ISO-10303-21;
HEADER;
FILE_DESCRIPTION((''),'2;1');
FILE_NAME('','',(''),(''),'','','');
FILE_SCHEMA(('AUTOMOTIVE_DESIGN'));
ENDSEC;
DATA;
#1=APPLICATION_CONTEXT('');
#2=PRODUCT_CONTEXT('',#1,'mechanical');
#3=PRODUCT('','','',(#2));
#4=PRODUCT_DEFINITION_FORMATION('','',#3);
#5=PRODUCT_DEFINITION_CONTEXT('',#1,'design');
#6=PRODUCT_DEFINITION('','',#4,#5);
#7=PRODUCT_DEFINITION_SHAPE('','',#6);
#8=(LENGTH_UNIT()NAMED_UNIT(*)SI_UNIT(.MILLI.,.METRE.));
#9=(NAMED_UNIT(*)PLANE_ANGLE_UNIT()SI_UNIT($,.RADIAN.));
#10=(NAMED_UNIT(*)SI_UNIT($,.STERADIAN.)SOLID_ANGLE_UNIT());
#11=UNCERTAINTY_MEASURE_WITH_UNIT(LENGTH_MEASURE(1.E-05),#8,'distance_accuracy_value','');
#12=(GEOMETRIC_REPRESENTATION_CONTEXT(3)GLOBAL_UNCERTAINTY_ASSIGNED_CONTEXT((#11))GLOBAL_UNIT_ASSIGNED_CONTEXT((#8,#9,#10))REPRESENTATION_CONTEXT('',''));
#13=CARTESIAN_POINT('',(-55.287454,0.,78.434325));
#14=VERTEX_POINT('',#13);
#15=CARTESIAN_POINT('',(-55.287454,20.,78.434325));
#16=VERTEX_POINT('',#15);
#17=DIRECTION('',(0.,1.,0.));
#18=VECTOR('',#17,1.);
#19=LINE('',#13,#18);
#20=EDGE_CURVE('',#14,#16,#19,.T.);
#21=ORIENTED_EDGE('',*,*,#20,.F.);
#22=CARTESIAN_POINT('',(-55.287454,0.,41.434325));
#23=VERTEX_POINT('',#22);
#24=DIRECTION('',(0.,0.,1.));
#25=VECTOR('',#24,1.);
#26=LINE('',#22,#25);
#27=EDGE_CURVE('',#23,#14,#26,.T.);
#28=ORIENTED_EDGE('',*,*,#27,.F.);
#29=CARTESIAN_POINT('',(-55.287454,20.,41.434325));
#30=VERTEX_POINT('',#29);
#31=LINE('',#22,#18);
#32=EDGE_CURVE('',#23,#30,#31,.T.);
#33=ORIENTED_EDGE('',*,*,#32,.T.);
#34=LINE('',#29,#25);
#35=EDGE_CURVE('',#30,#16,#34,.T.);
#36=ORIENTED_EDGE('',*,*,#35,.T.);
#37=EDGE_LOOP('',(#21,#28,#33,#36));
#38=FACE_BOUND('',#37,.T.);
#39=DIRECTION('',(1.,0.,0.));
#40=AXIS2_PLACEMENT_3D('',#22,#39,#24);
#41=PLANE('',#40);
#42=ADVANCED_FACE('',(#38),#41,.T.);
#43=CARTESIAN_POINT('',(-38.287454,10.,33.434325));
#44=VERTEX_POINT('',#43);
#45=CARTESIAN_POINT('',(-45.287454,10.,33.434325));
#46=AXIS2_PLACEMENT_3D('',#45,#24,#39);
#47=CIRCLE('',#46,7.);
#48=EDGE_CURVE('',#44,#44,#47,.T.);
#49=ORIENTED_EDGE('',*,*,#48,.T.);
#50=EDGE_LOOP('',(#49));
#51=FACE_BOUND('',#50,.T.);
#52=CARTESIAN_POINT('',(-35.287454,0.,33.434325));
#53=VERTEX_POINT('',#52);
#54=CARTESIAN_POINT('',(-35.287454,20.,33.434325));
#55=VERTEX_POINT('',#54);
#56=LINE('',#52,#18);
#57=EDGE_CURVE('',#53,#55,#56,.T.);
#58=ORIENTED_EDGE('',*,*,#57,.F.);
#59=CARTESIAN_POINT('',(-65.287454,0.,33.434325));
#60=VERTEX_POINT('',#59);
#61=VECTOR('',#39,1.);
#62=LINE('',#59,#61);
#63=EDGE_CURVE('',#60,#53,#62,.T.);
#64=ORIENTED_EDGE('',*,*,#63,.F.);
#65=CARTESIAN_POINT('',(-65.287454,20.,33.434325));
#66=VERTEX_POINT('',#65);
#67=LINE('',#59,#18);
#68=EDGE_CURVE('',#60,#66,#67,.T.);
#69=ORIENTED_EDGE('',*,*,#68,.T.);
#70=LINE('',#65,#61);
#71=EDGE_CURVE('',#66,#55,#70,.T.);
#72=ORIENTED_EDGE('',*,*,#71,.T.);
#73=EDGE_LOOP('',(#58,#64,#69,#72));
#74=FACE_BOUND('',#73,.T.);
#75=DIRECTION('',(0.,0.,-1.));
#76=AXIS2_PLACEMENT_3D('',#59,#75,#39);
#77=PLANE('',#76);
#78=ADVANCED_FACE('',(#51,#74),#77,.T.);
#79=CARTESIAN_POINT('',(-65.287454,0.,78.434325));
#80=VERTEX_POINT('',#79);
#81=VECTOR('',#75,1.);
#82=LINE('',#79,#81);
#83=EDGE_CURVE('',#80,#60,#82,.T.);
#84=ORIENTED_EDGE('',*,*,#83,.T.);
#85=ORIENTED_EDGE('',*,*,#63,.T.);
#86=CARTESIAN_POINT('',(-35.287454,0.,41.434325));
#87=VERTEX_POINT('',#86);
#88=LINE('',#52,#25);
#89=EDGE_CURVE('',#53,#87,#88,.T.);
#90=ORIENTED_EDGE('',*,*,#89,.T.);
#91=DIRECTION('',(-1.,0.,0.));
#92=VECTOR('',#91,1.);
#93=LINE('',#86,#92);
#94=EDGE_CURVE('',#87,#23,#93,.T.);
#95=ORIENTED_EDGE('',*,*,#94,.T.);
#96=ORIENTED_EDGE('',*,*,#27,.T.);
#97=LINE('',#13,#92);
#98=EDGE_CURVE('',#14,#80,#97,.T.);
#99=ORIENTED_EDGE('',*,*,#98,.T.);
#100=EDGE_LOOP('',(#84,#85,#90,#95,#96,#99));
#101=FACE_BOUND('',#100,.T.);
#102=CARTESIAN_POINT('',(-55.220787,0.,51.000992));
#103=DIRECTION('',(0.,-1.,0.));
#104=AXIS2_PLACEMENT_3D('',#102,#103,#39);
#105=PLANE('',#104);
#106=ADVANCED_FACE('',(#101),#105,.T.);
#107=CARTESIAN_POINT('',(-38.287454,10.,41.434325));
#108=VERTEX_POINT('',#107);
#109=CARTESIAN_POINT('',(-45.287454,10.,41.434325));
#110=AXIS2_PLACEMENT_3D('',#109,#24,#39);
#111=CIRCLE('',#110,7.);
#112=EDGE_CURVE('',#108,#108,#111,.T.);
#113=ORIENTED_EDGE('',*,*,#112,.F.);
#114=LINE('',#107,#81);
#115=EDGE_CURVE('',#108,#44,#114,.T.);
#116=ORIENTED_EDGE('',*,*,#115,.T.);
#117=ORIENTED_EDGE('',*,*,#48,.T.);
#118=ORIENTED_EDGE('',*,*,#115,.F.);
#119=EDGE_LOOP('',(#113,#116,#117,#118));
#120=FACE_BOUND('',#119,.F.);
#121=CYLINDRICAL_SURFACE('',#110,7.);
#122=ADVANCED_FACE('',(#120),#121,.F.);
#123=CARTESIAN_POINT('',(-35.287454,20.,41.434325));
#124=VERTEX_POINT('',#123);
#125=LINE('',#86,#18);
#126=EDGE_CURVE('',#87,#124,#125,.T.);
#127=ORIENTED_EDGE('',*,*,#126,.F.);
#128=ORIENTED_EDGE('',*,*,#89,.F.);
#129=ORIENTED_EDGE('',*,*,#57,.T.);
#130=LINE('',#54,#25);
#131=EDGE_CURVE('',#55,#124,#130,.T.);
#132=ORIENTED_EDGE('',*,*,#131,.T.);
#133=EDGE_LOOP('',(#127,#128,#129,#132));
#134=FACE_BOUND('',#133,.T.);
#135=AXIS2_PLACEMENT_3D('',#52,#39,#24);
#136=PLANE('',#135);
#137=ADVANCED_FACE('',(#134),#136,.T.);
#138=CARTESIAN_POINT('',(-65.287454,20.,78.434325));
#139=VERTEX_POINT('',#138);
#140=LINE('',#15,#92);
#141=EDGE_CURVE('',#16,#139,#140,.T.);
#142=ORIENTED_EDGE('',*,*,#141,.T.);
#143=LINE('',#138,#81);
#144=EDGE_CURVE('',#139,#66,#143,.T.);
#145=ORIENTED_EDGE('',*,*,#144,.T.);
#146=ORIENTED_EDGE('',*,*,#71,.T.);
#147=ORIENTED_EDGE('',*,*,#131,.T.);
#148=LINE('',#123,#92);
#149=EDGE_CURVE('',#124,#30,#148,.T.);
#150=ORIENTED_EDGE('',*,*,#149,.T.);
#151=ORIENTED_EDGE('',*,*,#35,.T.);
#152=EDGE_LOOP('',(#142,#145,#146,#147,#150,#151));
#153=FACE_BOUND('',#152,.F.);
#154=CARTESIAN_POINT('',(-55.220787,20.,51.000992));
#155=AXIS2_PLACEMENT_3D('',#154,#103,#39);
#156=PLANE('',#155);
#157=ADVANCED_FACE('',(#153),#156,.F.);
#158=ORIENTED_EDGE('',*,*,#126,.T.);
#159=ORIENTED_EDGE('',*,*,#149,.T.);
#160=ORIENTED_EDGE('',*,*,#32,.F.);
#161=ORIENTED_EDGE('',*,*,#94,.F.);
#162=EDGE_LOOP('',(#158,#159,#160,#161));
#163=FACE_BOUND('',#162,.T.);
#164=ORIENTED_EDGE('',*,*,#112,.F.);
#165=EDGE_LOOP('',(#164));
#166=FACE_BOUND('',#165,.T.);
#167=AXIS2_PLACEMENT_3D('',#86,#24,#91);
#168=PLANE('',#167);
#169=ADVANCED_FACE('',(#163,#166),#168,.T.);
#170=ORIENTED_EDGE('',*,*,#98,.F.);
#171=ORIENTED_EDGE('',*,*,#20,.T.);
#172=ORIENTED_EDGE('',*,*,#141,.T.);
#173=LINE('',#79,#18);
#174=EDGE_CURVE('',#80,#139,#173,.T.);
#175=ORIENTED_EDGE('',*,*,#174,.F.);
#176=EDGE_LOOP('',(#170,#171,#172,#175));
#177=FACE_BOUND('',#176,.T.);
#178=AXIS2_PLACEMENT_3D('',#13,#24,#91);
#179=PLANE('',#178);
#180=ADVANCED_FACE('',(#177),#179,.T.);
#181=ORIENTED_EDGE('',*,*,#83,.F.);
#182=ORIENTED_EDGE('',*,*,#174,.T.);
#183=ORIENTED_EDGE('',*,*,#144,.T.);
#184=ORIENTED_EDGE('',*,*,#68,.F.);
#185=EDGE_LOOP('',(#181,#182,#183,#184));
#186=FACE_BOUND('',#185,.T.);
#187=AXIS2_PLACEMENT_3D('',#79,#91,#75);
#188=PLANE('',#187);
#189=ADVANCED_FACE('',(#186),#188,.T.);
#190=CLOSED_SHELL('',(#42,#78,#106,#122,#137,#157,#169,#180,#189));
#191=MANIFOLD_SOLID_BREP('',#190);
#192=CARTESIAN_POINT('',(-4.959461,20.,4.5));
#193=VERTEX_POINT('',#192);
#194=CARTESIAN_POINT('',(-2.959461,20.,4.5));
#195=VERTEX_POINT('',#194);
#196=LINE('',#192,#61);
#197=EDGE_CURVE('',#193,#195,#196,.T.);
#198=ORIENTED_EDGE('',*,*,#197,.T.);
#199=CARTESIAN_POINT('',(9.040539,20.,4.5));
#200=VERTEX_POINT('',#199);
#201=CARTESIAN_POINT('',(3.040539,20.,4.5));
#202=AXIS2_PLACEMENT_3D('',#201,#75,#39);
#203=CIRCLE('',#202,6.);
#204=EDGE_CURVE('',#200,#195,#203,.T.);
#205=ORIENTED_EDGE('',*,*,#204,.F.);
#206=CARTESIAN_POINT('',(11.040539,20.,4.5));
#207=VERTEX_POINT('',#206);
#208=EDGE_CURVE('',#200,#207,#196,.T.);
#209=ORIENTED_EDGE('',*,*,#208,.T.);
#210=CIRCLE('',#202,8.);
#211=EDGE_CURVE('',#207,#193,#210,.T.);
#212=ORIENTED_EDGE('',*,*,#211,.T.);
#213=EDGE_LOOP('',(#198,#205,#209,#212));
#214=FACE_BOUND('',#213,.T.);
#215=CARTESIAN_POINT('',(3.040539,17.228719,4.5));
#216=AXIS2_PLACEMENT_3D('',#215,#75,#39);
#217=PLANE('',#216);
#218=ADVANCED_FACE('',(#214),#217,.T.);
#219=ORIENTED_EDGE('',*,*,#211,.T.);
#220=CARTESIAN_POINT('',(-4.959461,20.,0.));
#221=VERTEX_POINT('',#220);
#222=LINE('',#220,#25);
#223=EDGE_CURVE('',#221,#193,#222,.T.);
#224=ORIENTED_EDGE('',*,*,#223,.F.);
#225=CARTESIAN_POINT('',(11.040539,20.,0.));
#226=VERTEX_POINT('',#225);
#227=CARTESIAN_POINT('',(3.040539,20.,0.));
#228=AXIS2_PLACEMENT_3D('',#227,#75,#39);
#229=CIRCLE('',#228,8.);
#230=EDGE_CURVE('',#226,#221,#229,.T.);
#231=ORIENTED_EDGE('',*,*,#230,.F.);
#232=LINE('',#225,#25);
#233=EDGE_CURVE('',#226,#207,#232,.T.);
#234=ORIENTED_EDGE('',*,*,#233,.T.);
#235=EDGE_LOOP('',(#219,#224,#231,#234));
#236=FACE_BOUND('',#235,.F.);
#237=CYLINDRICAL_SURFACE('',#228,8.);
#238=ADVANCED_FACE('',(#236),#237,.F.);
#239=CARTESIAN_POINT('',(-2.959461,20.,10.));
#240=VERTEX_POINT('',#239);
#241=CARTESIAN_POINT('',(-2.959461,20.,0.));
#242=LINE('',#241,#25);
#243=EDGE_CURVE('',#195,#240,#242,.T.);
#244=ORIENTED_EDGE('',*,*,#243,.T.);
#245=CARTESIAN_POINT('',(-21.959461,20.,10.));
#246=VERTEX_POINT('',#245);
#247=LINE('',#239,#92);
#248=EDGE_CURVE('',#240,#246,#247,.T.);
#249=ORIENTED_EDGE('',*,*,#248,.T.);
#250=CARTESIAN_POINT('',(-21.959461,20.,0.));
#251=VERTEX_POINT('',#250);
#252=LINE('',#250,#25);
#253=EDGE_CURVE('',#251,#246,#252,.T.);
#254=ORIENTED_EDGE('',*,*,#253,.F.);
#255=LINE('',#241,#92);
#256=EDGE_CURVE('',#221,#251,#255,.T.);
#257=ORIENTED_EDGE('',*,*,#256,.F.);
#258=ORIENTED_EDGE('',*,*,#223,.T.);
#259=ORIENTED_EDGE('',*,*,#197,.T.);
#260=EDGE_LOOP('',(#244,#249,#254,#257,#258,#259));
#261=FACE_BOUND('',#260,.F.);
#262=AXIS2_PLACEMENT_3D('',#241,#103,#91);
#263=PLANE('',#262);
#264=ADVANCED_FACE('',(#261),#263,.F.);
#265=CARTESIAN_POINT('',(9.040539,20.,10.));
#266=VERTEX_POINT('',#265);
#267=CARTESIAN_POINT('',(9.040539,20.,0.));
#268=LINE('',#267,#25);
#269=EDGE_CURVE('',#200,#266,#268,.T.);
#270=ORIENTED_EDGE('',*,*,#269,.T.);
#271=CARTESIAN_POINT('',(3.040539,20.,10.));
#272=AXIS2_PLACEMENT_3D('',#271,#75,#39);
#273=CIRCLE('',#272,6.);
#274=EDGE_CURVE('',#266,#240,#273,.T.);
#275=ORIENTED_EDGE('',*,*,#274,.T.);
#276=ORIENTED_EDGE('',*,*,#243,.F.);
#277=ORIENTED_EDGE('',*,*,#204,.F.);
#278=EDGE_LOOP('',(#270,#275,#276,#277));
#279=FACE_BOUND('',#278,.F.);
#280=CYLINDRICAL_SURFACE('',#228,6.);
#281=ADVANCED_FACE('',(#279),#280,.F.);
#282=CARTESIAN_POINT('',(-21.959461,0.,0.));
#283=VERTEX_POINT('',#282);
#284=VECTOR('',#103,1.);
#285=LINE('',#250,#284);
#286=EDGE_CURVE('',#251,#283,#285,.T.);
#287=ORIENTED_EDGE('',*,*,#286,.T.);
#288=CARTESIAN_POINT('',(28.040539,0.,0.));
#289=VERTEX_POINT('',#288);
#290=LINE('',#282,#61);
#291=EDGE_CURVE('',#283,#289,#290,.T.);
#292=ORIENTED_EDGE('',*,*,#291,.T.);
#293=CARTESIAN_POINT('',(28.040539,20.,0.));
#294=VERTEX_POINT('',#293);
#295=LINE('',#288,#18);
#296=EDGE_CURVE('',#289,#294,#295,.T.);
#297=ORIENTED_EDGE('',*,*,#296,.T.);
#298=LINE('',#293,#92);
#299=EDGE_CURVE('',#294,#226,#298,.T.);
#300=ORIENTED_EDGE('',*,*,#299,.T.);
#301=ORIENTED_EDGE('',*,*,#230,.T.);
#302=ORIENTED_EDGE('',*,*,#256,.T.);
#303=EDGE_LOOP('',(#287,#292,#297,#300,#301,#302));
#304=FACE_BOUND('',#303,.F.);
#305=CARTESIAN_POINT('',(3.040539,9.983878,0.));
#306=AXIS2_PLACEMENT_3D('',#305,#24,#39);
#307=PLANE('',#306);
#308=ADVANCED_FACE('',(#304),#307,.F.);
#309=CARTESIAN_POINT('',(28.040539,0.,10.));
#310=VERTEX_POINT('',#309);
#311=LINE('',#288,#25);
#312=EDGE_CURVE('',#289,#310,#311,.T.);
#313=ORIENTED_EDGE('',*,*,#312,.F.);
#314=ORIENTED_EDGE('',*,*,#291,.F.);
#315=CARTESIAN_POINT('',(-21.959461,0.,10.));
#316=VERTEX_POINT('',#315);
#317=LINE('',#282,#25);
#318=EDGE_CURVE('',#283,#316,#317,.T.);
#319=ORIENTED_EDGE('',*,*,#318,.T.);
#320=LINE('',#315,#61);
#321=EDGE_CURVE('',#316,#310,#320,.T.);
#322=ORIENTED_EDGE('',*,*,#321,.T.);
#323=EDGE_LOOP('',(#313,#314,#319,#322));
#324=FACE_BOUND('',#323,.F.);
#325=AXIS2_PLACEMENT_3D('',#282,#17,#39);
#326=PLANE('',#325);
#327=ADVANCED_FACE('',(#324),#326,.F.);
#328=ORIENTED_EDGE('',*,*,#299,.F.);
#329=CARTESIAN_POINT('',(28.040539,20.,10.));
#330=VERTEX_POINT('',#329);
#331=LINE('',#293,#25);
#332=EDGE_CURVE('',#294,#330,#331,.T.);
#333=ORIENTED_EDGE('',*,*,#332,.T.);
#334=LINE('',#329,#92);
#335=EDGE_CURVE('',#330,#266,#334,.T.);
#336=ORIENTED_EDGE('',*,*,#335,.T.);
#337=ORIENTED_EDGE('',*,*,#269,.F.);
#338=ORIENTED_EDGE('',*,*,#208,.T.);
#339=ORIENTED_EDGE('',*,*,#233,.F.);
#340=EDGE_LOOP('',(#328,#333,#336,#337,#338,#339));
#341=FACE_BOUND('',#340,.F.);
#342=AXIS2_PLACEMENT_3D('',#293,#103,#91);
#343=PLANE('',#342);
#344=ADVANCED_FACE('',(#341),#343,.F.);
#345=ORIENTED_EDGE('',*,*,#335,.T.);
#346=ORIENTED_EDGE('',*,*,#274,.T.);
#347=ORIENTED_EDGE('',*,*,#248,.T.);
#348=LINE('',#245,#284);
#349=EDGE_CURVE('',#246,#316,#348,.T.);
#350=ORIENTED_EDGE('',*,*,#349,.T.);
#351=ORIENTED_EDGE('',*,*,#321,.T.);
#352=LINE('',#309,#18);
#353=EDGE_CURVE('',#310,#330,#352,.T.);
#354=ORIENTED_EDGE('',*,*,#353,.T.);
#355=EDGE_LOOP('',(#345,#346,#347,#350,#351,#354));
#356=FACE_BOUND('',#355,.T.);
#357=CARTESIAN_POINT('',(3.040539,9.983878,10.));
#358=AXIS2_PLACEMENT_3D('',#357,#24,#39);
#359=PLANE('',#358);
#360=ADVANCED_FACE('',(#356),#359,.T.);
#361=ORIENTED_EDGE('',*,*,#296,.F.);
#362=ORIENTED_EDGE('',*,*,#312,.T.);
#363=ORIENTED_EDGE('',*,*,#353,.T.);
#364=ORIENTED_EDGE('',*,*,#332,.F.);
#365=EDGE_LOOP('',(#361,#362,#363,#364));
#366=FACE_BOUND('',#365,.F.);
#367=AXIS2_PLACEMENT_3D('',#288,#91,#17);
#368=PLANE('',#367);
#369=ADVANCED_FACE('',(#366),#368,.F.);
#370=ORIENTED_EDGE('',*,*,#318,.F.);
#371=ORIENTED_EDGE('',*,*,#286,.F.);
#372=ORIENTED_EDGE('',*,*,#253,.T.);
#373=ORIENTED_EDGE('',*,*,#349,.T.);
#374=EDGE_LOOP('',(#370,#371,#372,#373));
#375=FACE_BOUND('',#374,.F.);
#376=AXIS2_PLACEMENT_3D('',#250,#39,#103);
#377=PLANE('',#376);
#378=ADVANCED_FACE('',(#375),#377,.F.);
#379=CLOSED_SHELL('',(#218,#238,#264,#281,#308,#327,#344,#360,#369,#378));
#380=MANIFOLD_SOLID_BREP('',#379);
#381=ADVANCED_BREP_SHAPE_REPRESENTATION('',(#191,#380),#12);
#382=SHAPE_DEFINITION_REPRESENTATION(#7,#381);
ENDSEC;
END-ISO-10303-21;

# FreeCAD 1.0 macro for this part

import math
import FreeCAD as App
import Part
import Sketcher

V = App.Vector


def add_polygon(sketch, points):
    """Adds a closed chain of lines whose ends are joined by coincident constraints."""
    first, n = sketch.GeometryCount, len(points)
    for a, b in zip(points, points[1:] + points[:1]):
        sketch.addGeometry(Part.LineSegment(App.Vector(*a, 0), App.Vector(*b, 0)), False)
    for i in range(n):
        sketch.addConstraint(Sketcher.Constraint("Coincident", first + i, 2, first + (i + 1) % n, 1))

doc = App.newDocument("Part")
body = doc.addObject("PartDesign::Body", "Body")

# Sketch on XY plane
sketch1 = doc.addObject("Sketcher::SketchObject", "Sketch")
body.addObject(sketch1)
sketch1.AttachmentSupport = (doc.XY_Plane, [""])
sketch1.MapMode = "FlatFace"
sketch1.addGeometry([
    Part.LineSegment(V(-2.959461, 20, 0), V(-21.959461, 20, 0)),  # 0
    Part.LineSegment(V(-21.959461, 20, 0), V(-21.959461, 0, 0)),  # 1
    Part.LineSegment(V(-21.959461, 0, 0), V(28.040539, 0, 0)),  # 2
    Part.LineSegment(V(28.040539, 0, 0), V(28.040539, 20, 0)),  # 3
    Part.LineSegment(V(28.040539, 20, 0), V(9.040539, 20, 0)),  # 4
    Part.ArcOfCircle(Part.Circle(V(3.040539, 20, 0), V(0, 0, 1), 6), math.radians(180), math.radians(360)),  # 5
], False)
sketch1.addConstraint([
    Sketcher.Constraint("Coincident", 0, 2, 1, 1),
    Sketcher.Constraint("Coincident", 1, 2, 2, 1),
    Sketcher.Constraint("Coincident", 2, 2, 3, 1),
    Sketcher.Constraint("Coincident", 3, 2, 4, 1),
    Sketcher.Constraint("Coincident", 4, 2, 5, 2),
    Sketcher.Constraint("Coincident", 5, 1, 0, 1),
    Sketcher.Constraint("Horizontal", 0),
    Sketcher.Constraint("Vertical", 1),
    Sketcher.Constraint("Horizontal", 2),
    Sketcher.Constraint("Vertical", 3),
    Sketcher.Constraint("Horizontal", 4),
    Sketcher.Constraint("PointOnObject", 1, 2, -1),
    Sketcher.Constraint("Horizontal", 5, 3, 0, 2),
    Sketcher.Constraint("Horizontal", 0, 2, 3, 2),
    Sketcher.Constraint("Equal", 0, 4),
    Sketcher.Constraint("Radius", 5, 6.0),
    Sketcher.Constraint("DistanceX", 0, 2, 0, 1, 19.0),
    Sketcher.Constraint("DistanceY", 1, 2, 1, 1, 20.0),
    Sketcher.Constraint("DistanceX", -1, 1, 5, 3, 3.040539),
])
pad1 = doc.addObject("PartDesign::Pad", "Pad")
body.addObject(pad1)
pad1.Profile = sketch1
pad1.Length = 10

# Sketch on XY plane
sketch2 = doc.addObject("Sketcher::SketchObject", "Sketch001")
body.addObject(sketch2)
sketch2.AttachmentSupport = (doc.XY_Plane, [""])
sketch2.MapMode = "FlatFace"
sketch2.addGeometry([
    Part.LineSegment(V(-4.959461, 20, 0), V(11.040539, 20, 0)),
    Part.ArcOfCircle(Part.Circle(V(3.040539, 20, 0), V(0, 0, 1), 8), math.radians(180), math.radians(360)),
], False)
sketch2.addConstraint([
    Sketcher.Constraint("Coincident", 0, 1, 1, 1),
    Sketcher.Constraint("Coincident", 1, 2, 0, 2),
    Sketcher.Constraint("Horizontal", 0),
    Sketcher.Constraint("Horizontal", 1, 3, 0, 1),
    Sketcher.Constraint("Radius", 1, 8.0),
    Sketcher.Constraint("DistanceY", -1, 1, 1, 3, 20.0),
    Sketcher.Constraint("DistanceX", -1, 1, 1, 3, 3.040539),
])
pocket1 = doc.addObject("PartDesign::Pocket", "Pocket")
body.addObject(pocket1)
pocket1.Profile = sketch2
pocket1.Length = 4.5
pocket1.Reversed = True
body2 = doc.addObject("PartDesign::Body", "Body001")

# Sketch on XZ plane
sketch3 = doc.addObject("Sketcher::SketchObject", "Sketch002")
body2.addObject(sketch3)
sketch3.AttachmentSupport = (doc.getObject("XZ_Plane001"), [""])
sketch3.MapMode = "FlatFace"
add_polygon(sketch3, [(-55.287454, 78.434325), (-65.287454, 78.434325), (-65.287454, 33.434325), (-35.287454, 33.434325), (-35.287454, 41.434325), (-55.287454, 41.434325)])  # lines 0-5
sketch3.addConstraint([
    Sketcher.Constraint("Horizontal", 0),
    Sketcher.Constraint("Vertical", 1),
    Sketcher.Constraint("Horizontal", 2),
    Sketcher.Constraint("Vertical", 3),
    Sketcher.Constraint("Horizontal", 4),
    Sketcher.Constraint("Vertical", 5),
    Sketcher.Constraint("DistanceX", 0, 2, 0, 1, 10.0),
    Sketcher.Constraint("DistanceX", 2, 1, 2, 2, 30.0),
    Sketcher.Constraint("DistanceY", 1, 2, 1, 1, 45.0),
    Sketcher.Constraint("DistanceY", 3, 1, 3, 2, 8.0),
    Sketcher.Constraint("DistanceX", 0, 2, -1, 1, 65.287454),
    Sketcher.Constraint("DistanceY", -1, 1, 0, 2, 78.434325),
])
pad2 = doc.addObject("PartDesign::Pad", "Pad001")
body2.addObject(pad2)
pad2.Profile = sketch3
pad2.Length = 20
pad2.Reversed = True

# Sketch on XY plane
sketch4 = doc.addObject("Sketcher::SketchObject", "Sketch003")
body2.addObject(sketch4)
sketch4.AttachmentSupport = (doc.getObject("XY_Plane001"), [""])
sketch4.MapMode = "FlatFace"
sketch4.AttachmentOffset = App.Placement(V(0, 0, 41.434325), App.Rotation())
sketch4.addGeometry(Part.Circle(V(-45.287454, 10, 0), V(0, 0, 1), 7), False)
sketch4.addConstraint([
    Sketcher.Constraint("Diameter", 0, 14.0),
    Sketcher.Constraint("DistanceY", -1, 1, 0, 3, 10.0),
    Sketcher.Constraint("DistanceX", 0, 3, -1, 1, 45.287454),
])
pocket2 = doc.addObject("PartDesign::Pocket", "Pocket001")
body2.addObject(pocket2)
pocket2.Profile = sketch4
pocket2.Length = 25

doc.recompute()
